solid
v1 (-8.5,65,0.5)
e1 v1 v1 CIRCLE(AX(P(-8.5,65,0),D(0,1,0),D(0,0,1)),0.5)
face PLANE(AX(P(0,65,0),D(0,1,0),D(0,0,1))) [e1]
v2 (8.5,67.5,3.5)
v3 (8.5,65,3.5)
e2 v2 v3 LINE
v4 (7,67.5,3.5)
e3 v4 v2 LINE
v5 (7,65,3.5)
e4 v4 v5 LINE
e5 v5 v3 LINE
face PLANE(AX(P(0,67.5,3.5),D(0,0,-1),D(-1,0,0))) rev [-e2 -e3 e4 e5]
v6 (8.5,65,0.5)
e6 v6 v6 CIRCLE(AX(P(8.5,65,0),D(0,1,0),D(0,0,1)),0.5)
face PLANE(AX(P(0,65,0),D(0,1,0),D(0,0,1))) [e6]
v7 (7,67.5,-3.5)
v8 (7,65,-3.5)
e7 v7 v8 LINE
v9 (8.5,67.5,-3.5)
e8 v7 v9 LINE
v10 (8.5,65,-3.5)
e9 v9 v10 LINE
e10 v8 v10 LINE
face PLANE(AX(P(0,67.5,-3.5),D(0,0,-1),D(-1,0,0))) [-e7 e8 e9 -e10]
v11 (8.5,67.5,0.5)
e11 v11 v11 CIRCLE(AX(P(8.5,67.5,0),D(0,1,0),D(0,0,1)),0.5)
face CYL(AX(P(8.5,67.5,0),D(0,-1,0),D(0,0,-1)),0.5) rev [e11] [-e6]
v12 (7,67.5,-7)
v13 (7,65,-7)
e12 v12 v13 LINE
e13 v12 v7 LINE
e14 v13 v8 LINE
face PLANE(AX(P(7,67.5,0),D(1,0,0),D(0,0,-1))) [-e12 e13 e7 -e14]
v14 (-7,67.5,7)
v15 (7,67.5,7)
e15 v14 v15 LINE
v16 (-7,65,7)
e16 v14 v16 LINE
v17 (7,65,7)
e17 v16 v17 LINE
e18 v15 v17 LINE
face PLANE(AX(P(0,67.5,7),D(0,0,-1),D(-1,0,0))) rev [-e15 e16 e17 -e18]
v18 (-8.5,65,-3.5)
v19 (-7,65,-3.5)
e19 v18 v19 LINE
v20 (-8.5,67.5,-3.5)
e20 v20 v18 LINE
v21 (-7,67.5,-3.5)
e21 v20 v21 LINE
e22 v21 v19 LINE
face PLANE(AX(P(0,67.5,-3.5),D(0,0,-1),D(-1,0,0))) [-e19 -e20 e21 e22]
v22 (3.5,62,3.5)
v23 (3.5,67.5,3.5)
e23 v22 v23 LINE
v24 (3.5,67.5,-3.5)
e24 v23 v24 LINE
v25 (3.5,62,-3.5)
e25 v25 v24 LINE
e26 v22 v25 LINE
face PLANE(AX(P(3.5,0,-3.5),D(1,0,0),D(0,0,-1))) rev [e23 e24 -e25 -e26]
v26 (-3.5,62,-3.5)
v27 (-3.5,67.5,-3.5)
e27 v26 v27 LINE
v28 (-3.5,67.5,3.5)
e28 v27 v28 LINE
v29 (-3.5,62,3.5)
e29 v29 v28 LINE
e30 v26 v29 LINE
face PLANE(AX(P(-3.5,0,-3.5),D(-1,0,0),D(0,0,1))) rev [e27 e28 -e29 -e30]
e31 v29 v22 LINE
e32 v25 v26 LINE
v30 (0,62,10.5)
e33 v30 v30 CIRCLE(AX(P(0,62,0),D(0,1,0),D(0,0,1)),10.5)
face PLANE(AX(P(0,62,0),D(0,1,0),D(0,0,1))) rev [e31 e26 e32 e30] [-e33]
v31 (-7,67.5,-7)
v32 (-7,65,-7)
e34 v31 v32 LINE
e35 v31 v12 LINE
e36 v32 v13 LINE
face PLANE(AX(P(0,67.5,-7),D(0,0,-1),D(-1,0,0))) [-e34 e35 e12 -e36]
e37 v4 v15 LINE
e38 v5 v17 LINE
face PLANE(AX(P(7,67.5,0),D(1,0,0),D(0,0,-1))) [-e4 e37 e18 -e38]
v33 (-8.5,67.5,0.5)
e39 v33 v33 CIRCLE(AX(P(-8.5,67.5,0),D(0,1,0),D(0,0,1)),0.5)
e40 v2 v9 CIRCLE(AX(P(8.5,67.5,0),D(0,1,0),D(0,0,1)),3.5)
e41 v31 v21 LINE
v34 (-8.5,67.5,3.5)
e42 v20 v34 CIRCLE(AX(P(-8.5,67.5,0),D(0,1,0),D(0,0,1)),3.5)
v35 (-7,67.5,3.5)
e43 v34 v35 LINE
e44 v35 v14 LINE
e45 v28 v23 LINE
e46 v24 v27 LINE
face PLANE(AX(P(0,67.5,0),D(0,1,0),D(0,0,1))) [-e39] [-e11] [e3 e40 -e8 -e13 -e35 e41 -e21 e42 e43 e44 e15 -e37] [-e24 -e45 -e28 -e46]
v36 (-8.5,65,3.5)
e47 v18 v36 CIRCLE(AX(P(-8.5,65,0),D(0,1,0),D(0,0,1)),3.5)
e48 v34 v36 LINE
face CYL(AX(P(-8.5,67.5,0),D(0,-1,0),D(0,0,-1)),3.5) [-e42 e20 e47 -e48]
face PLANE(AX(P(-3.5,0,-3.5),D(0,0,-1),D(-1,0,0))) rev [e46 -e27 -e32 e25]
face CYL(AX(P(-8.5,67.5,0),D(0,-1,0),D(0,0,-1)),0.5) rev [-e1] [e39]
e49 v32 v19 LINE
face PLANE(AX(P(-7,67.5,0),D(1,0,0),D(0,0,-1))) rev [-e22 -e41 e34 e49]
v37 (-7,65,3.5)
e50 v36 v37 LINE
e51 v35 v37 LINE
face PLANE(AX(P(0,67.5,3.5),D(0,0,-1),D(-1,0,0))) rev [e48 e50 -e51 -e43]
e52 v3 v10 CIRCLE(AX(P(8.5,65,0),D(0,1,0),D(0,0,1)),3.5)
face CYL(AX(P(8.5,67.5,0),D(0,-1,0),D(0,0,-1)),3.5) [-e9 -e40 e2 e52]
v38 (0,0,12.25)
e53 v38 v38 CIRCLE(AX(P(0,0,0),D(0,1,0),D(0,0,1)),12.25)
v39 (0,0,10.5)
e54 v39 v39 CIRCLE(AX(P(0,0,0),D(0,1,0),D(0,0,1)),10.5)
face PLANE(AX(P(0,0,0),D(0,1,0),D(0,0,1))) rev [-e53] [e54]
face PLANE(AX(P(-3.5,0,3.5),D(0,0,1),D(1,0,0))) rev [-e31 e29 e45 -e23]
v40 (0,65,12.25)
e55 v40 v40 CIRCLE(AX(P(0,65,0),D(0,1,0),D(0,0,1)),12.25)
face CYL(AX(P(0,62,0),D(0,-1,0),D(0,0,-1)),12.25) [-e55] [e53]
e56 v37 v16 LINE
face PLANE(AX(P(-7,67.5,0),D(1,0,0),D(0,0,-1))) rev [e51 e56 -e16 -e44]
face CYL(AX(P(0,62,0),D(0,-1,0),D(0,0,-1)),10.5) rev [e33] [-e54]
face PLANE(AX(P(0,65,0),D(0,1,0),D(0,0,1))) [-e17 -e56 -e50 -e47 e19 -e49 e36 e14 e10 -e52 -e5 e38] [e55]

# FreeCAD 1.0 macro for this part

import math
import FreeCAD as App
import Part
import Sketcher


def add_polygon(sketch, points):
    """Adds a closed chain of lines whose ends are joined by coincident constraints."""
    first, n = sketch.GeometryCount, len(points)
    for a, b in zip(points, points[1:] + points[:1]):
        sketch.addGeometry(Part.LineSegment(App.Vector(*a, 0), App.Vector(*b, 0)), False)
    for i in range(n):
        sketch.addConstraint(Sketcher.Constraint("Coincident", first + i, 2, first + (i + 1) % n, 1))

doc = App.newDocument("Part")
params = doc.addObject("Spreadsheet::Sheet", "Params")
for row, (alias, value) in enumerate([
    ("sketch1_diameter", "21 mm"),
    ("sketch1_diameter2", "24.5 mm"),
    ("pad1_length", "62 mm"),
    ("sketch2_diameter", "24.5 mm"),
    ("pad2_length", "3 mm"),
    ("sketch3_diameter", "1 mm"),
    ("sketch3_radius", "3.5 mm"),
    ("sketch3_width", "14 mm"),
    ("sketch3_width2", "1.5 mm"),
    ("sketch3_height", "3.5 mm"),
    ("pad3_length", "2.5 mm"),
    ("sketch4_width", "7 mm"),
], start=1):
    params.set(f"A{row}", alias)
    params.set(f"B{row}", "=" + value)
    params.setAlias(f"B{row}", alias)

body = doc.addObject("PartDesign::Body", "Body")

# Sketch on XZ plane
sketch1 = body.newObject("Sketcher::SketchObject", "Sketch")
sketch1.AttachmentSupport = (doc.getObject("XZ_Plane"), [""])
sketch1.MapMode = "FlatFace"
sketch1.addGeometry(Part.Circle(App.Vector(0, 0, 0), App.Vector(0, 0, 1), 12), False)
sketch1.addGeometry(Part.Circle(App.Vector(0, 0, 0), App.Vector(0, 0, 1), 10), False)
sketch1.addConstraint(Sketcher.Constraint("Coincident", 0, 3, -1, 1))
sketch1.addConstraint(Sketcher.Constraint("Coincident", 1, 3, -1, 1))
sketch1.addConstraint(Sketcher.Constraint("Diameter", 1, 21.0))
sketch1.addConstraint(Sketcher.Constraint("Diameter", 0, 24.5))
sketch1.setExpression("Constraints[2]", "Params.sketch1_diameter")
sketch1.setExpression("Constraints[3]", "Params.sketch1_diameter2")
pad1 = body.newObject("PartDesign::Pad", "Pad")
pad1.Profile = sketch1
pad1.setExpression("Length", "Params.pad1_length")
pad1.Reversed = True

# Sketch on XZ plane
sketch2 = body.newObject("Sketcher::SketchObject", "Sketch001")
sketch2.AttachmentSupport = (doc.getObject("XZ_Plane"), [""])
sketch2.MapMode = "FlatFace"
sketch2.AttachmentOffset = App.Placement(App.Vector(0, 0, -62), App.Rotation())
sketch2.addGeometry(Part.Circle(App.Vector(0, 0, 0), App.Vector(0, 0, 1), 12), False)
sketch2.addConstraint(Sketcher.Constraint("Coincident", 0, 3, -1, 1))
sketch2.addConstraint(Sketcher.Constraint("Diameter", 0, 24.5))
sketch2.setExpression("Constraints[1]", "Params.sketch2_diameter")
pad2 = body.newObject("PartDesign::Pad", "Pad001")
pad2.Profile = sketch2
pad2.setExpression("Length", "Params.pad2_length")
pad2.Reversed = True

# Sketch on XZ plane
sketch3 = body.newObject("Sketcher::SketchObject", "Sketch002")
sketch3.AttachmentSupport = (doc.getObject("XZ_Plane"), [""])
sketch3.MapMode = "FlatFace"
sketch3.AttachmentOffset = App.Placement(App.Vector(0, 0, -65), App.Rotation())
sketch3.addGeometry(Part.LineSegment(App.Vector(-7, 3.5, 0), App.Vector(-7, 7, 0)), False)
sketch3.addGeometry(Part.LineSegment(App.Vector(-7, 7, 0), App.Vector(7, 7, 0)), False)
sketch3.addGeometry(Part.LineSegment(App.Vector(7, 7, 0), App.Vector(7, 3.5, 0)), False)
sketch3.addGeometry(Part.LineSegment(App.Vector(7, 3.5, 0), App.Vector(8.5, 3.5, 0)), False)
sketch3.addGeometry(Part.ArcOfCircle(Part.Circle(App.Vector(8.5, 0, 0), App.Vector(0, 0, 1), 3.5), math.radians(-90), math.radians(90)), False)
sketch3.addGeometry(Part.LineSegment(App.Vector(8.5, -3.5, 0), App.Vector(7, -3.5, 0)), False)
sketch3.addGeometry(Part.LineSegment(App.Vector(7, -3.5, 0), App.Vector(7, -7, 0)), False)
sketch3.addGeometry(Part.LineSegment(App.Vector(7, -7, 0), App.Vector(-7, -7, 0)), False)
sketch3.addGeometry(Part.LineSegment(App.Vector(-7, -7, 0), App.Vector(-7, -3.5, 0)), False)
sketch3.addGeometry(Part.LineSegment(App.Vector(-7, -3.5, 0), App.Vector(-8.5, -3.5, 0)), False)
sketch3.addGeometry(Part.ArcOfCircle(Part.Circle(App.Vector(-8.5, 0, 0), App.Vector(0, 0, 1), 3.5), math.radians(90), math.radians(270)), False)
sketch3.addGeometry(Part.LineSegment(App.Vector(-8.5, 3.5, 0), App.Vector(-7, 3.5, 0)), False)
sketch3.addGeometry(Part.Circle(App.Vector(-8.5, 0, 0), App.Vector(0, 0, 1), 0.5), False)
sketch3.addGeometry(Part.Circle(App.Vector(8.5, 0, 0), App.Vector(0, 0, 1), 0.5), False)
sketch3.addConstraint(Sketcher.Constraint("Coincident", 0, 2, 1, 1))
sketch3.addConstraint(Sketcher.Constraint("Coincident", 1, 2, 2, 1))
sketch3.addConstraint(Sketcher.Constraint("Coincident", 2, 2, 3, 1))
sketch3.addConstraint(Sketcher.Constraint("Tangent", 3, 2, 4, 2))
sketch3.addConstraint(Sketcher.Constraint("Tangent", 4, 1, 5, 1))
sketch3.addConstraint(Sketcher.Constraint("Coincident", 5, 2, 6, 1))
sketch3.addConstraint(Sketcher.Constraint("Coincident", 6, 2, 7, 1))
sketch3.addConstraint(Sketcher.Constraint("Coincident", 7, 2, 8, 1))
sketch3.addConstraint(Sketcher.Constraint("Coincident", 8, 2, 9, 1))
sketch3.addConstraint(Sketcher.Constraint("Tangent", 9, 2, 10, 2))
sketch3.addConstraint(Sketcher.Constraint("Tangent", 10, 1, 11, 1))
sketch3.addConstraint(Sketcher.Constraint("Coincident", 11, 2, 0, 1))
sketch3.addConstraint(Sketcher.Constraint("Vertical", 0))
sketch3.addConstraint(Sketcher.Constraint("Horizontal", 1))
sketch3.addConstraint(Sketcher.Constraint("Vertical", 2))
sketch3.addConstraint(Sketcher.Constraint("Horizontal", 3))
sketch3.addConstraint(Sketcher.Constraint("Horizontal", 5))
sketch3.addConstraint(Sketcher.Constraint("Vertical", 6))
sketch3.addConstraint(Sketcher.Constraint("Horizontal", 7))
sketch3.addConstraint(Sketcher.Constraint("Vertical", 8))
sketch3.addConstraint(Sketcher.Constraint("Horizontal", 9))
sketch3.addConstraint(Sketcher.Constraint("Horizontal", 11))
sketch3.addConstraint(Sketcher.Constraint("Coincident", 12, 3, 10, 3))
sketch3.addConstraint(Sketcher.Constraint("Coincident", 13, 3, 4, 3))
sketch3.addConstraint(Sketcher.Constraint("Equal", 4, 10))
sketch3.addConstraint(Sketcher.Constraint("Equal", 12, 13))
sketch3.addConstraint(Sketcher.Constraint("Symmetric", 4, 3, 10, 3, -1, 1))
sketch3.addConstraint(Sketcher.Constraint("Symmetric", 0, 2, 6, 2, -1, 1))
sketch3.addConstraint(Sketcher.Constraint("Symmetric", 5, 2, 8, 2, -2))
sketch3.addConstraint(Sketcher.Constraint("Vertical", 2, 2, 5, 2))
sketch3.addConstraint(Sketcher.Constraint("Diameter", 12, 1.0))
sketch3.addConstraint(Sketcher.Constraint("Radius", 4, 3.5))
sketch3.addConstraint(Sketcher.Constraint("DistanceX", 1, 1, 1, 2, 14.0))
sketch3.addConstraint(Sketcher.Constraint("DistanceX", 3, 1, 3, 2, 1.5))
sketch3.addConstraint(Sketcher.Constraint("DistanceY", 0, 1, 0, 2, 3.5))
sketch3.setExpression("Constraints[30]", "Params.sketch3_diameter")
sketch3.setExpression("Constraints[31]", "Params.sketch3_radius")
sketch3.setExpression("Constraints[32]", "Params.sketch3_width")
sketch3.setExpression("Constraints[33]", "Params.sketch3_width2")
sketch3.setExpression("Constraints[34]", "Params.sketch3_height")
pad3 = body.newObject("PartDesign::Pad", "Pad002")
pad3.Profile = sketch3
pad3.setExpression("Length", "Params.pad3_length")
pad3.Reversed = True

# Sketch on XZ plane
sketch4 = body.newObject("Sketcher::SketchObject", "Sketch003")
sketch4.AttachmentSupport = (doc.getObject("XZ_Plane"), [""])
sketch4.MapMode = "FlatFace"
sketch4.AttachmentOffset = App.Placement(App.Vector(0, 0, -67.5), App.Rotation())
add_polygon(sketch4, [(-4, -4), (-4, 4), (4, 4), (4, -4)])  # lines 0-3
sketch4.addConstraint(Sketcher.Constraint("Vertical", 0))
sketch4.addConstraint(Sketcher.Constraint("Horizontal", 1))
sketch4.addConstraint(Sketcher.Constraint("Vertical", 2))
sketch4.addConstraint(Sketcher.Constraint("Horizontal", 3))
sketch4.addConstraint(Sketcher.Constraint("Symmetric", 0, 2, 2, 2, -1, 1))
sketch4.addConstraint(Sketcher.Constraint("Equal", 3, 0))
sketch4.addConstraint(Sketcher.Constraint("DistanceX", 1, 1, 1, 2, 7.0))
sketch4.setExpression("Constraints[10]", "Params.sketch4_width")
pocket1 = body.newObject("PartDesign::Pocket", "Pocket")
pocket1.Profile = sketch4
pocket1.Type = "ThroughAll"
pocket1.Midplane = True

doc.recompute()
